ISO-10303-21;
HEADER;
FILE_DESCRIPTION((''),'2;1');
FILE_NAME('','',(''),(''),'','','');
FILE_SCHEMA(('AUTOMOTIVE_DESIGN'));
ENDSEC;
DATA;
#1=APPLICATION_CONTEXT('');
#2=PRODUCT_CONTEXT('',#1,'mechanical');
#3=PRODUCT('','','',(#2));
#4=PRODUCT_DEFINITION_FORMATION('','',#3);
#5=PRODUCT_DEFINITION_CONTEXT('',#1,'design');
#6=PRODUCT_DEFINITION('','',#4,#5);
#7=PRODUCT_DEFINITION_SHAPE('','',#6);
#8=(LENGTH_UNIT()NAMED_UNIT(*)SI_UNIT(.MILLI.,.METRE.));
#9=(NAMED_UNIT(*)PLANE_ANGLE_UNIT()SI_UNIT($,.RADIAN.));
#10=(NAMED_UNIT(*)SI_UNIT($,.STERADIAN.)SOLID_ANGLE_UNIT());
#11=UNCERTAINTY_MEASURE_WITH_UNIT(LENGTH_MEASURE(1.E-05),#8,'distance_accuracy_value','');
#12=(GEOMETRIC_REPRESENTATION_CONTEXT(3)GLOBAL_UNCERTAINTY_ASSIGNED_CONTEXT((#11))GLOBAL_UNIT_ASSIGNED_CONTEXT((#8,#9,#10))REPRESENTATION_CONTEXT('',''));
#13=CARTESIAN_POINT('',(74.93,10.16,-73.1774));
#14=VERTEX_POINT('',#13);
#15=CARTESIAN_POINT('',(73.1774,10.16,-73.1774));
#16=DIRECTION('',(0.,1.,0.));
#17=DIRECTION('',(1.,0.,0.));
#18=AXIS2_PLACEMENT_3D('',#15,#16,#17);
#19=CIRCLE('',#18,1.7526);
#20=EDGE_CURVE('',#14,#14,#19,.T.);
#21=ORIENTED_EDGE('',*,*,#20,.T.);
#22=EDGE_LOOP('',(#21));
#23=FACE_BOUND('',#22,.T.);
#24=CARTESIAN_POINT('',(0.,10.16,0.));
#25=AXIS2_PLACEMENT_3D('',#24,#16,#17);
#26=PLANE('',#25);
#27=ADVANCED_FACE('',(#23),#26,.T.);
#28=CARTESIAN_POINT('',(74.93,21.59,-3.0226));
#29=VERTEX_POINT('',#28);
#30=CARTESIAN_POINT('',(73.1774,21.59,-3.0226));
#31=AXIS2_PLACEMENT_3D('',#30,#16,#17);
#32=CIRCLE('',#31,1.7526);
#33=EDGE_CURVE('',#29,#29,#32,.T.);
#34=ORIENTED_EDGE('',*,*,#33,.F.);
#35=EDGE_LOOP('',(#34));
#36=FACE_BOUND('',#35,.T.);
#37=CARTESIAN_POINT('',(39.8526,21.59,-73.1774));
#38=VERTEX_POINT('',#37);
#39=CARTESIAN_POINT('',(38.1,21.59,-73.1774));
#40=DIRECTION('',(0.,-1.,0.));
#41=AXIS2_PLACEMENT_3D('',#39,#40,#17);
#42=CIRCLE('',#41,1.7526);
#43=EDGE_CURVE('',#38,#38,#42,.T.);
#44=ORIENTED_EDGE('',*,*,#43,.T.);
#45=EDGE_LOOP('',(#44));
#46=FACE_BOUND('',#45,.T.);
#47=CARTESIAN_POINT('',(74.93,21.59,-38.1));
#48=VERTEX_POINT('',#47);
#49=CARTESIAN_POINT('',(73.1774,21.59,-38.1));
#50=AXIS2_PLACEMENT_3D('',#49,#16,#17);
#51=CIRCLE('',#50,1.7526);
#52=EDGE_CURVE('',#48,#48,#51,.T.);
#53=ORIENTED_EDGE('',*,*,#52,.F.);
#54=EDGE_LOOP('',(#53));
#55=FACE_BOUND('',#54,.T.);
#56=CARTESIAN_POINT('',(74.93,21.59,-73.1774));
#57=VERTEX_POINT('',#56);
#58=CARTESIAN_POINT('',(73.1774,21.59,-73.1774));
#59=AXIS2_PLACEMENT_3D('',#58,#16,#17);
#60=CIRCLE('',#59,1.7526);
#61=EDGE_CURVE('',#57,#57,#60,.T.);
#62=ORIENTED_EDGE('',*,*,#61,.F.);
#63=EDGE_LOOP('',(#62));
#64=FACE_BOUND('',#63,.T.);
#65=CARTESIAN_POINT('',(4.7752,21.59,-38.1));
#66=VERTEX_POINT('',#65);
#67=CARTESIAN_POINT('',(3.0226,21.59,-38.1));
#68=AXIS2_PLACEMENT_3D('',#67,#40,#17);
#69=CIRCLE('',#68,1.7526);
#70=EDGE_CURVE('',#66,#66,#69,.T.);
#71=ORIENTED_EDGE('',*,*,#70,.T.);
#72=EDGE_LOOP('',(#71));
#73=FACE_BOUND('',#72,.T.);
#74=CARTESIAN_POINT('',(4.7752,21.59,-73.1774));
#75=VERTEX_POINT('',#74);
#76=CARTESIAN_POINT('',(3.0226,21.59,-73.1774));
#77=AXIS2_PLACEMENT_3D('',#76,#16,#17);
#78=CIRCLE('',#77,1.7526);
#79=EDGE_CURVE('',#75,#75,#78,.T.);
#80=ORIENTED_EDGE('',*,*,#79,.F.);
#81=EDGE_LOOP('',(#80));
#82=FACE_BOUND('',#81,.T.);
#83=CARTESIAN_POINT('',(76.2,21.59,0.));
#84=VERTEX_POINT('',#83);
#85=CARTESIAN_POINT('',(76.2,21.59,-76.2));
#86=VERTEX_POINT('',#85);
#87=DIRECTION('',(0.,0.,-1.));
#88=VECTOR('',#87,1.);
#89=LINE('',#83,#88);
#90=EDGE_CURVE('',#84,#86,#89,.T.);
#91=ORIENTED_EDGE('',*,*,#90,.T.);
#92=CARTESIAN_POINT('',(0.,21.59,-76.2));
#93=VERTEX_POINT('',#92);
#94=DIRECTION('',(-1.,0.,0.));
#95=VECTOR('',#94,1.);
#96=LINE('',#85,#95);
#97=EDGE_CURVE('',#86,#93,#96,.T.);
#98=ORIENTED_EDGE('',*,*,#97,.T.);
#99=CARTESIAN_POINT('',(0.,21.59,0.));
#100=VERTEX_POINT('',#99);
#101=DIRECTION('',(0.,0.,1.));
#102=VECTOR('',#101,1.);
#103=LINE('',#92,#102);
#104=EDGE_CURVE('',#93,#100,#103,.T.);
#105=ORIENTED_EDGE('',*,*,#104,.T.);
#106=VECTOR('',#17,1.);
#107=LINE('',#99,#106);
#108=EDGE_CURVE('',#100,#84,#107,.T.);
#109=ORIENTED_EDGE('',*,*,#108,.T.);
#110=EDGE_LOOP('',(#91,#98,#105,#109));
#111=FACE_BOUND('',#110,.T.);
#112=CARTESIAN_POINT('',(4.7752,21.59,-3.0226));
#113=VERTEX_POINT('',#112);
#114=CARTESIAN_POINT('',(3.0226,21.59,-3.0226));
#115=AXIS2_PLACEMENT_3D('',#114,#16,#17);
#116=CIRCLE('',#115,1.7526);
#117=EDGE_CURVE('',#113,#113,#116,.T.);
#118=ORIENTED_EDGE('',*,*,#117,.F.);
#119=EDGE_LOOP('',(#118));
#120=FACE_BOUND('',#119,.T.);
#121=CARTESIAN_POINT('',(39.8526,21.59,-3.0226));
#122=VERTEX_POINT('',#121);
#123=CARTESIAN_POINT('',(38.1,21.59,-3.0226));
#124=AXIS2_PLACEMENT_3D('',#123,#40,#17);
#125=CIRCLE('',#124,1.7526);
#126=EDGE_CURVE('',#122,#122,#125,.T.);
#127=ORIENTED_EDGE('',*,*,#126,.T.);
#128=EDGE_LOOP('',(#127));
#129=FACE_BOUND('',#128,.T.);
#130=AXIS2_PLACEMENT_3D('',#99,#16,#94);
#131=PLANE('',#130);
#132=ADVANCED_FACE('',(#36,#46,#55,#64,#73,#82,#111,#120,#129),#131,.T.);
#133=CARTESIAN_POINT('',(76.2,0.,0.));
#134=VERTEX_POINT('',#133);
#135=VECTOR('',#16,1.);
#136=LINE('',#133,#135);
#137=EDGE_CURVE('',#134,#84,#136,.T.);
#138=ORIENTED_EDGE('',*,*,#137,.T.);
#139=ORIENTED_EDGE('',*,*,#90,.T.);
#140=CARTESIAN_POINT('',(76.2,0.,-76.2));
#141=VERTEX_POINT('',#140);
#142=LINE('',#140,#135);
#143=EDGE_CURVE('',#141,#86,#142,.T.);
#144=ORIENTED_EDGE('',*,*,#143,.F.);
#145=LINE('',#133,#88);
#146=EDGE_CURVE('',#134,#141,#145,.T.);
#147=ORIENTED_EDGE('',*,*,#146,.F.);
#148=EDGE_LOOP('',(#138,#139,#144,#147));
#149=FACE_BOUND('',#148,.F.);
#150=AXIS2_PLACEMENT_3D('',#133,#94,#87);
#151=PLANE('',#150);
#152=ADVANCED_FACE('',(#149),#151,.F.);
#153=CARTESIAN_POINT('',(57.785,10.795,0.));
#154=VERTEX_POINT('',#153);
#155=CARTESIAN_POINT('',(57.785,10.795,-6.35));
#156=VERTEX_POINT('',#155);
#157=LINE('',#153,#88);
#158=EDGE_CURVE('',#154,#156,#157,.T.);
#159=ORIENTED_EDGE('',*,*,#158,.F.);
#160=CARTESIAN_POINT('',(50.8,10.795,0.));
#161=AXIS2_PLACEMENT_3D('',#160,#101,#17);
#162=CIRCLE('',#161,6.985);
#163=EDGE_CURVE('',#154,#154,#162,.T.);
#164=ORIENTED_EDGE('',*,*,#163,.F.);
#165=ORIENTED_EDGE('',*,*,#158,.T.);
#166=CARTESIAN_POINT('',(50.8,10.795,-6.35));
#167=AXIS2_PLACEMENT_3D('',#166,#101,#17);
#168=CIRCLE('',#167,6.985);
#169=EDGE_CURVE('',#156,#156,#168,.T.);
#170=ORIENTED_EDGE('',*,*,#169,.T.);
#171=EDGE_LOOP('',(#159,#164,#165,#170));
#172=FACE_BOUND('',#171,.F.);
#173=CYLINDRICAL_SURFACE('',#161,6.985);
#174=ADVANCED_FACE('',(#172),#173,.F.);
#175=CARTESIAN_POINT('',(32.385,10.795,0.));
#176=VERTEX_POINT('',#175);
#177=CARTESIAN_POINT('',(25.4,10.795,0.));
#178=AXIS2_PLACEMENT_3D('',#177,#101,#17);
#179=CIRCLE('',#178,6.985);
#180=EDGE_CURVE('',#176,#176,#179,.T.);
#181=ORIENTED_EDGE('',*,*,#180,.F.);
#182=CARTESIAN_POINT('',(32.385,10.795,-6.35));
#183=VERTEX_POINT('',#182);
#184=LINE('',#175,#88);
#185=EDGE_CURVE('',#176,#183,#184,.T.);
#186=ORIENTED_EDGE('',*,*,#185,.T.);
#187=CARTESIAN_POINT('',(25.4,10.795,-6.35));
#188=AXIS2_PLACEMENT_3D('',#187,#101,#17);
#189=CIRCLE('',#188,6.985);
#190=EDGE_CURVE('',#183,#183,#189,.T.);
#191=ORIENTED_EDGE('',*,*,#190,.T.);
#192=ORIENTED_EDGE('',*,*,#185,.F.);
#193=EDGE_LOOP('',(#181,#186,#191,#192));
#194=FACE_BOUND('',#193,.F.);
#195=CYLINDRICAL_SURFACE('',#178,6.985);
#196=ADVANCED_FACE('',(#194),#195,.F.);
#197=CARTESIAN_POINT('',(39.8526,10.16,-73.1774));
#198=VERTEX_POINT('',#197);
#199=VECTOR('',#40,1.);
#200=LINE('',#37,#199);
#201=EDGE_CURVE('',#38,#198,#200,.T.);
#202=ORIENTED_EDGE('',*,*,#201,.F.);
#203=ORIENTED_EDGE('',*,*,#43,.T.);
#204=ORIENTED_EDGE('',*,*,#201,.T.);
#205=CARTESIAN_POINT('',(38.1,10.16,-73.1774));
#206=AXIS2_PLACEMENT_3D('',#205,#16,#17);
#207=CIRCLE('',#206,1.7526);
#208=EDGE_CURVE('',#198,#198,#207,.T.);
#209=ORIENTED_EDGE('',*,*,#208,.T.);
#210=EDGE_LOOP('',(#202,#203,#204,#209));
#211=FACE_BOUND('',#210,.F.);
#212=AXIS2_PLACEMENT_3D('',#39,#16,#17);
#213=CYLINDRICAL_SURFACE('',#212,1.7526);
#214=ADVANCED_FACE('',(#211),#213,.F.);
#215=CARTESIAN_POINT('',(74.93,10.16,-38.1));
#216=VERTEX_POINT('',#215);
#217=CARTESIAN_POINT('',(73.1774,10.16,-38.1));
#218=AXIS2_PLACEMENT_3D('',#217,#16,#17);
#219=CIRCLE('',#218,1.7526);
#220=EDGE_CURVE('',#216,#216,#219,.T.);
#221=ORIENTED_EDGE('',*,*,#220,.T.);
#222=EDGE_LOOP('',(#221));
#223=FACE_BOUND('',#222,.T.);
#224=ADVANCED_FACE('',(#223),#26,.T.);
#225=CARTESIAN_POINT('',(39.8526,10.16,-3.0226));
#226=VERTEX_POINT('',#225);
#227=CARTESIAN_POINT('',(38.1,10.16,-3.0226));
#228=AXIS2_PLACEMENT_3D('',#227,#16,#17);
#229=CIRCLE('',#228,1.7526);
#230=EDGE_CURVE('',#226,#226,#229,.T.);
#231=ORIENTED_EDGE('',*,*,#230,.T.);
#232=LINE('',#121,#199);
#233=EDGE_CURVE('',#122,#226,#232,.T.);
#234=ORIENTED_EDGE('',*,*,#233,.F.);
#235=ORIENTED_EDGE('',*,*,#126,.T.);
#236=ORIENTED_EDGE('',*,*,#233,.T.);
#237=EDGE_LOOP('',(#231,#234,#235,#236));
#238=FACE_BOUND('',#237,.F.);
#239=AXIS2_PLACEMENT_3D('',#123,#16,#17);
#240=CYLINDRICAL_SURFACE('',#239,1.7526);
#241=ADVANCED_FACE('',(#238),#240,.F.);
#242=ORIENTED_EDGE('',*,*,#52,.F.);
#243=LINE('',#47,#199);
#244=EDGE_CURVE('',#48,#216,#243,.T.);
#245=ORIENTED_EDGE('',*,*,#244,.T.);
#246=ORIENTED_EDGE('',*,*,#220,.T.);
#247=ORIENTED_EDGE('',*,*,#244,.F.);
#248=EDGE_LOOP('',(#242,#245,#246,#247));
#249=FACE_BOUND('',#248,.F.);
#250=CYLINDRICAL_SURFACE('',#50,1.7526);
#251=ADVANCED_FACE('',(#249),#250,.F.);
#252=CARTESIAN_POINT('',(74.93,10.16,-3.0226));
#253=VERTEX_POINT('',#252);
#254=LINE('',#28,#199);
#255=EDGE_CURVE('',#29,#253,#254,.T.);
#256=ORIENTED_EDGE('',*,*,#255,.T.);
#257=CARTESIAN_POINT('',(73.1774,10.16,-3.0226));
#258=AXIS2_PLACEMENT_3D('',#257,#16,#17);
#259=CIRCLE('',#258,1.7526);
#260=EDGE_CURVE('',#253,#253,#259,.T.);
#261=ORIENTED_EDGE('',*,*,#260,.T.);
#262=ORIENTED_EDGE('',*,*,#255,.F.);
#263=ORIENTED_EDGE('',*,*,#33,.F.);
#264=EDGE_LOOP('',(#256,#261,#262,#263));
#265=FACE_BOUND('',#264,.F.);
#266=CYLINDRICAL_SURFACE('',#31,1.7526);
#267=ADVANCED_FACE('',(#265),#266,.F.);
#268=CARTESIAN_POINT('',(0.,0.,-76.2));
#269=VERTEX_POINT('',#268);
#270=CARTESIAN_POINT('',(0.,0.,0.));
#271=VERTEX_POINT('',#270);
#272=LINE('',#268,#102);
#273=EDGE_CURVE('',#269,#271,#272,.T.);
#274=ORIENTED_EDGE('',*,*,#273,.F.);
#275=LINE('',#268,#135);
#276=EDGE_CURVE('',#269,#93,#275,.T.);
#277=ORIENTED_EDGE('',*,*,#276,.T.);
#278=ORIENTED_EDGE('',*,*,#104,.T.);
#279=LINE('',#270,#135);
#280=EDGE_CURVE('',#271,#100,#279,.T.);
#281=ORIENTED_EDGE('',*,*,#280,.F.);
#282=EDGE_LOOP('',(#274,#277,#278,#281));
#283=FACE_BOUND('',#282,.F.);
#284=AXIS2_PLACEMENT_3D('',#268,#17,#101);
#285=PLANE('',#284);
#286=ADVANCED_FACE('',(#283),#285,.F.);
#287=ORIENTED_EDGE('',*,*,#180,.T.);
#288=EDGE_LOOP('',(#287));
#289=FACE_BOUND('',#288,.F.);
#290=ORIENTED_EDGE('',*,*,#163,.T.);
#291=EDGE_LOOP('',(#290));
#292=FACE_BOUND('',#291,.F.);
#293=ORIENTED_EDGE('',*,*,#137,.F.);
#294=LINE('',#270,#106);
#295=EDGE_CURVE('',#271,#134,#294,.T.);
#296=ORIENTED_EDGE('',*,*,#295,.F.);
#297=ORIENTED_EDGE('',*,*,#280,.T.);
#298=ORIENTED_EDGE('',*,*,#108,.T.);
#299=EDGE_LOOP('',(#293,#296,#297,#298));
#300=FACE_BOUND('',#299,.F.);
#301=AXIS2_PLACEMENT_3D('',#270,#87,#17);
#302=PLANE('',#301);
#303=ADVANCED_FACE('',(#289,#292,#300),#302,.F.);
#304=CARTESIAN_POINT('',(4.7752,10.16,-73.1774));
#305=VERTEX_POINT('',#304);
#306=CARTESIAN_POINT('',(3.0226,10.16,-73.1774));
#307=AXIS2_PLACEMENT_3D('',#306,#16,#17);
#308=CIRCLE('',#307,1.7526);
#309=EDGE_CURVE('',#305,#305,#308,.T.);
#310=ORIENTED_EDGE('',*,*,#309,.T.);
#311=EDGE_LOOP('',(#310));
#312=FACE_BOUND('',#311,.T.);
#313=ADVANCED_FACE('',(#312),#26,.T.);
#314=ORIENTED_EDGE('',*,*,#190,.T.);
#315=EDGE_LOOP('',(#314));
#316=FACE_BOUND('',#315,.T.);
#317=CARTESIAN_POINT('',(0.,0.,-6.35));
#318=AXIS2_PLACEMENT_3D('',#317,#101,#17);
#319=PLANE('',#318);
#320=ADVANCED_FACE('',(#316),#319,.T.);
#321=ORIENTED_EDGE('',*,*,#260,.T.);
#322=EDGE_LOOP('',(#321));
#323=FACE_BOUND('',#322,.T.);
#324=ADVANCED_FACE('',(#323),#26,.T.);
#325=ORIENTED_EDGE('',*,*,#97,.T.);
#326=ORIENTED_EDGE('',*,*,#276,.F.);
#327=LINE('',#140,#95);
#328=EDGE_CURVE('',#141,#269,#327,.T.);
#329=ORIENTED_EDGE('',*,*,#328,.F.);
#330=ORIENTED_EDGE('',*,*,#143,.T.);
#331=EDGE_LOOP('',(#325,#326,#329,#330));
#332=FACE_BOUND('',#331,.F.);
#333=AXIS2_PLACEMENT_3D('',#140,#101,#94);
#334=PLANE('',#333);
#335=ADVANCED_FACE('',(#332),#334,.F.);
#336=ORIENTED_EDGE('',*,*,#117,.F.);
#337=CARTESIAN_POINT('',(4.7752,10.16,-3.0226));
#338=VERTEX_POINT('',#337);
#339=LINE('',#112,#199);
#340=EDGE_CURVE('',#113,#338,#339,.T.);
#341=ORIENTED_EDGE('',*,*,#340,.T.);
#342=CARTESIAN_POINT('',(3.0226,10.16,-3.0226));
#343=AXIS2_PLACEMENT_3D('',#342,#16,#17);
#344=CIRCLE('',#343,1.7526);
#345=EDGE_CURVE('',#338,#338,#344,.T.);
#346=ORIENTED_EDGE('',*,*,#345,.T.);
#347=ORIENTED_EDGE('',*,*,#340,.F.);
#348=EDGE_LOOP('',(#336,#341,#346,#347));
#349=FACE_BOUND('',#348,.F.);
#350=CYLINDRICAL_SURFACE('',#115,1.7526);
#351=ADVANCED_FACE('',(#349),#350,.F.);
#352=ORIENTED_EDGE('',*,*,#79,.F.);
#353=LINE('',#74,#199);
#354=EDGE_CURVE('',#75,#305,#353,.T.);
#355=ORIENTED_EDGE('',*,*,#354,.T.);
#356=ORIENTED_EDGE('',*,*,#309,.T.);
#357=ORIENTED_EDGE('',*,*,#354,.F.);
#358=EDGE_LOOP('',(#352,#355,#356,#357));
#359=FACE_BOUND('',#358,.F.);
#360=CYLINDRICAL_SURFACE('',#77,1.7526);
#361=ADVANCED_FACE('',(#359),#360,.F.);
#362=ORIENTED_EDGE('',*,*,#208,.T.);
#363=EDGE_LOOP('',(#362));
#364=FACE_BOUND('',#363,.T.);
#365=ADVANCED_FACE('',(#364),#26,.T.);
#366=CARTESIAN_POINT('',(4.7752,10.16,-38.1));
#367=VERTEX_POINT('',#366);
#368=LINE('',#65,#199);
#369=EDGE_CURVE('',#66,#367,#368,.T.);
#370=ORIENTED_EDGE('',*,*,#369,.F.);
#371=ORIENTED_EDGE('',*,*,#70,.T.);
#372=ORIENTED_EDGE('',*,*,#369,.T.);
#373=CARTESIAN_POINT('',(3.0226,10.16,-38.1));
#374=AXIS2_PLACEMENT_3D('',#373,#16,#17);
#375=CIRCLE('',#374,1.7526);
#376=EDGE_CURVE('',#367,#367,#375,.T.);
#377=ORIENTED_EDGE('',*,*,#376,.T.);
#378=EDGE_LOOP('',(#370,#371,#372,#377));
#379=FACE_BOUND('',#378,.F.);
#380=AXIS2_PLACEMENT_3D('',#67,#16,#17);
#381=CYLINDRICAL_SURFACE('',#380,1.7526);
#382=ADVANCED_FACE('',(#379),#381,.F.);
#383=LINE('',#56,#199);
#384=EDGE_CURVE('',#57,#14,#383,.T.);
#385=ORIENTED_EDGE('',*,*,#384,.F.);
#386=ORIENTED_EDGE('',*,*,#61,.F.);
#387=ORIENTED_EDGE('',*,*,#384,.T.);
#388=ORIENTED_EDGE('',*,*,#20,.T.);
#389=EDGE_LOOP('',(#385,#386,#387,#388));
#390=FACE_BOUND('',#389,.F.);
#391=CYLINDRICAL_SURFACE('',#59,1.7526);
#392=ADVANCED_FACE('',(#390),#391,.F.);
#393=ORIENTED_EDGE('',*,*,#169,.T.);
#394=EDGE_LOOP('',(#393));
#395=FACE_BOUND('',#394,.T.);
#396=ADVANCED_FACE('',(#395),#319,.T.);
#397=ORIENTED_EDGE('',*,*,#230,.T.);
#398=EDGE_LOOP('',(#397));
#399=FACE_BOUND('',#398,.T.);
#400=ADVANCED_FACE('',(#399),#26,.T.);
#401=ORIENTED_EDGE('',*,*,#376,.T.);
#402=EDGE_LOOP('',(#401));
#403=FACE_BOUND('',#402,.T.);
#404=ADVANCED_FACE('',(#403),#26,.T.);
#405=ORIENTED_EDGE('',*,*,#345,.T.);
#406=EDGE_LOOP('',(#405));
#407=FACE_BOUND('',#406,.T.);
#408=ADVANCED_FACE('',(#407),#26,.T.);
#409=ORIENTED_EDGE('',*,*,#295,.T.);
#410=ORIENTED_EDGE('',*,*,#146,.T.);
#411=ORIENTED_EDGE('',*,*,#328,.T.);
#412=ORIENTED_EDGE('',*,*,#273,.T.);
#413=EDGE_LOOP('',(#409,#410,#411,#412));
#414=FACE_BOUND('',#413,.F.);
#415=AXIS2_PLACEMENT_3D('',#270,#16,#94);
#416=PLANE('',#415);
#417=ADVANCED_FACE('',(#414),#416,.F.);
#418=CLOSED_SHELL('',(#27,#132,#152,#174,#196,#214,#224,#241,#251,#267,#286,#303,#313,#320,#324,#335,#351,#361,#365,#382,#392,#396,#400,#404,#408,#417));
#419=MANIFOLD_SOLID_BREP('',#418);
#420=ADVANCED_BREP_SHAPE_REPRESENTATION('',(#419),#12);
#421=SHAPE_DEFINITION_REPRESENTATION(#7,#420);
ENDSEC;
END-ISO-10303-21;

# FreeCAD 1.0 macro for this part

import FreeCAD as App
import Part
import Sketcher
from FreeCAD import Vector
Q = App.Units.Quantity

doc = App.newDocument("Part")
body = doc.addObject("PartDesign::Body", "Body")

# Sketch on XZ plane
sketch1 = body.newObject("Sketcher::SketchObject", "Sketch")
sketch1.AttachmentSupport = (doc.getObject("XZ_Plane"), [""])
sketch1.MapMode = "FlatFace"
sketch1.addGeometry([
    Part.LineSegment(Vector(0, -76, 0), Vector(0, 0, 0)),
    Part.LineSegment(Vector(0, 0, 0), Vector(76, 0, 0)),
    Part.LineSegment(Vector(76, 0, 0), Vector(76, -76, 0)),
    Part.LineSegment(Vector(76, -76, 0), Vector(0, -76, 0)),
], False)
sketch1.addConstraint([
    Sketcher.Constraint("Coincident", 0, 2, 1, 1),
    Sketcher.Constraint("Coincident", 1, 2, 2, 1),
    Sketcher.Constraint("Coincident", 2, 2, 3, 1),
    Sketcher.Constraint("Coincident", 3, 2, 0, 1),
    Sketcher.Constraint("Vertical", 0),
    Sketcher.Constraint("Horizontal", 1),
    Sketcher.Constraint("Vertical", 2),
    Sketcher.Constraint("Horizontal", 3),
    Sketcher.Constraint("Coincident", 0, 2, -1, 1),
    Sketcher.Constraint("Equal", 3, 0),
    Sketcher.Constraint("DistanceX", 1, 1, 1, 2, Q("3 in")),
])
pad1 = body.newObject("PartDesign::Pad", "Pad")
pad1.Profile = sketch1
pad1.Length = Q("0.85 in")
pad1.Reversed = True

# Sketch on XZ plane
sketch2 = body.newObject("Sketcher::SketchObject", "Sketch001")
sketch2.AttachmentSupport = (doc.getObject("XZ_Plane"), [""])
sketch2.MapMode = "FlatFace"
sketch2.AttachmentOffset = App.Placement(Vector(0, 0, -0.85 * 25.4), App.Rotation())
sketch2.addGeometry([
    Part.Circle(Vector(38.1, -73.2, 0), Vector(0, 0, 1), 1.8),  # 0
    Part.Circle(Vector(3, -38.1, 0), Vector(0, 0, 1), 1.8),  # 1
    Part.Circle(Vector(38.1, -3, 0), Vector(0, 0, 1), 1.8),  # 2
    Part.Circle(Vector(73.2, -38.1, 0), Vector(0, 0, 1), 1.8),  # 3
    Part.Circle(Vector(3, -73.2, 0), Vector(0, 0, 1), 1.8),  # 4
    Part.Circle(Vector(73.2, -3, 0), Vector(0, 0, 1), 1.8),  # 5
    Part.Circle(Vector(73.2, -73.2, 0), Vector(0, 0, 1), 1.8),  # 6
    Part.Circle(Vector(3, -3, 0), Vector(0, 0, 1), 1.8),  # 7
], False)
sketch2.addConstraint([
    Sketcher.Constraint("Equal", 0, 1),
    Sketcher.Constraint("Equal", 1, 2),
    Sketcher.Constraint("Equal", 2, 3),
    Sketcher.Constraint("Equal", 3, 4),
    Sketcher.Constraint("Equal", 4, 5),
    Sketcher.Constraint("Equal", 5, 6),
    Sketcher.Constraint("Equal", 6, 7),
    Sketcher.Constraint("Horizontal", 1, 3, 3, 3),
    Sketcher.Constraint("Horizontal", 0, 3, 4, 3),
    Sketcher.Constraint("Horizontal", 2, 3, 5, 3),
    Sketcher.Constraint("Horizontal", 4, 3, 6, 3),
    Sketcher.Constraint("Horizontal", 5, 3, 7, 3),
    Sketcher.Constraint("Vertical", 0, 3, 2, 3),
    Sketcher.Constraint("Vertical", 1, 3, 4, 3),
    Sketcher.Constraint("Vertical", 3, 3, 5, 3),
    Sketcher.Constraint("Vertical", 5, 3, 6, 3),
    Sketcher.Constraint("Vertical", 4, 3, 7, 3),
    Sketcher.Constraint("Diameter", 0, Q("0.138 in")),
    Sketcher.Constraint("DistanceX", -1, 1, 1, 3, Q("0.119 in")),
    Sketcher.Constraint("DistanceY", 2, 3, -1, 1, Q("0.119 in")),
    Sketcher.Constraint("DistanceX", -1, 1, 0, 3, Q("1.5 in")),
    Sketcher.Constraint("DistanceY", 1, 3, -1, 1, Q("1.5 in")),
    Sketcher.Constraint("DistanceY", 0, 3, -1, 1, Q("2.881 in")),
    Sketcher.Constraint("DistanceX", -1, 1, 3, 3, Q("2.881 in")),
])
pocket1 = body.newObject("PartDesign::Pocket", "Pocket")
pocket1.Profile = sketch2
pocket1.Length = Q("0.45 in")
pocket1.Reversed = True

# Sketch on XY plane
sketch3 = body.newObject("Sketcher::SketchObject", "Sketch002")
sketch3.AttachmentSupport = (doc.getObject("XY_Plane"), [""])
sketch3.MapMode = "FlatFace"
sketch3.addGeometry([
    Part.Circle(Vector(25, 11, 0), Vector(0, 0, 1), 7),
    Part.Circle(Vector(51, 11, 0), Vector(0, 0, 1), 7),
], False)
sketch3.addConstraint([
    Sketcher.Constraint("Equal", 0, 1),
    Sketcher.Constraint("Horizontal", 0, 3, 1, 3),
    Sketcher.Constraint("Diameter", 0, Q("0.55 in")),
    Sketcher.Constraint("DistanceX", -1, 1, 0, 3, Q("1 in")),
    Sketcher.Constraint("DistanceX", -1, 1, 1, 3, Q("2 in")),
    Sketcher.Constraint("DistanceY", -1, 1, 0, 3, Q("0.425 in")),
])
pocket2 = body.newObject("PartDesign::Pocket", "Pocket001")
pocket2.Profile = sketch3
pocket2.Length = Q("0.25 in")

doc.recompute()
